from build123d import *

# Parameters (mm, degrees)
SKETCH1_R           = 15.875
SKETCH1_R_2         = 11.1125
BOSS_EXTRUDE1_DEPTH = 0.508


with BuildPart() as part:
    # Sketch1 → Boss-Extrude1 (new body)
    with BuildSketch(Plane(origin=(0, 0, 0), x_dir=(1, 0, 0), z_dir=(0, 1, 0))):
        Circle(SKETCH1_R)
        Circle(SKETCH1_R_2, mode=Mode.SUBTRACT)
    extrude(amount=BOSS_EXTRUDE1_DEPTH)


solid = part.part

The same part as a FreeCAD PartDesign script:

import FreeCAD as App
import Part
import Sketcher
from FreeCAD import Vector
Q = App.Units.Quantity

doc = App.newDocument("Part")
body = doc.addObject("PartDesign::Body", "Body")

# Sketch on XZ plane
sketch1 = doc.addObject("Sketcher::SketchObject", "Sketch")
body.addObject(sketch1)
sketch1.AttachmentSupport = (doc.XZ_Plane, [""])
sketch1.MapMode = "FlatFace"
sketch1.addGeometry([
    Part.Circle(Vector(0, 0, 0), Vector(0, 0, 1), 15.875),
    Part.Circle(Vector(0, 0, 0), Vector(0, 0, 1), 11.1125),
], False)
sketch1.addConstraint([
    Sketcher.Constraint("Coincident", 0, 3, -1, 1),
    Sketcher.Constraint("Coincident", 1, 3, -1, 1),
    Sketcher.Constraint("Diameter", 0, Q("1.25 in")),
    Sketcher.Constraint("Diameter", 1, Q("0.875 in")),
])
pad1 = doc.addObject("PartDesign::Pad", "Pad")
body.addObject(pad1)
pad1.Profile = sketch1
pad1.Length = Q("0.02 in")
pad1.Reversed = True

doc.recompute()
